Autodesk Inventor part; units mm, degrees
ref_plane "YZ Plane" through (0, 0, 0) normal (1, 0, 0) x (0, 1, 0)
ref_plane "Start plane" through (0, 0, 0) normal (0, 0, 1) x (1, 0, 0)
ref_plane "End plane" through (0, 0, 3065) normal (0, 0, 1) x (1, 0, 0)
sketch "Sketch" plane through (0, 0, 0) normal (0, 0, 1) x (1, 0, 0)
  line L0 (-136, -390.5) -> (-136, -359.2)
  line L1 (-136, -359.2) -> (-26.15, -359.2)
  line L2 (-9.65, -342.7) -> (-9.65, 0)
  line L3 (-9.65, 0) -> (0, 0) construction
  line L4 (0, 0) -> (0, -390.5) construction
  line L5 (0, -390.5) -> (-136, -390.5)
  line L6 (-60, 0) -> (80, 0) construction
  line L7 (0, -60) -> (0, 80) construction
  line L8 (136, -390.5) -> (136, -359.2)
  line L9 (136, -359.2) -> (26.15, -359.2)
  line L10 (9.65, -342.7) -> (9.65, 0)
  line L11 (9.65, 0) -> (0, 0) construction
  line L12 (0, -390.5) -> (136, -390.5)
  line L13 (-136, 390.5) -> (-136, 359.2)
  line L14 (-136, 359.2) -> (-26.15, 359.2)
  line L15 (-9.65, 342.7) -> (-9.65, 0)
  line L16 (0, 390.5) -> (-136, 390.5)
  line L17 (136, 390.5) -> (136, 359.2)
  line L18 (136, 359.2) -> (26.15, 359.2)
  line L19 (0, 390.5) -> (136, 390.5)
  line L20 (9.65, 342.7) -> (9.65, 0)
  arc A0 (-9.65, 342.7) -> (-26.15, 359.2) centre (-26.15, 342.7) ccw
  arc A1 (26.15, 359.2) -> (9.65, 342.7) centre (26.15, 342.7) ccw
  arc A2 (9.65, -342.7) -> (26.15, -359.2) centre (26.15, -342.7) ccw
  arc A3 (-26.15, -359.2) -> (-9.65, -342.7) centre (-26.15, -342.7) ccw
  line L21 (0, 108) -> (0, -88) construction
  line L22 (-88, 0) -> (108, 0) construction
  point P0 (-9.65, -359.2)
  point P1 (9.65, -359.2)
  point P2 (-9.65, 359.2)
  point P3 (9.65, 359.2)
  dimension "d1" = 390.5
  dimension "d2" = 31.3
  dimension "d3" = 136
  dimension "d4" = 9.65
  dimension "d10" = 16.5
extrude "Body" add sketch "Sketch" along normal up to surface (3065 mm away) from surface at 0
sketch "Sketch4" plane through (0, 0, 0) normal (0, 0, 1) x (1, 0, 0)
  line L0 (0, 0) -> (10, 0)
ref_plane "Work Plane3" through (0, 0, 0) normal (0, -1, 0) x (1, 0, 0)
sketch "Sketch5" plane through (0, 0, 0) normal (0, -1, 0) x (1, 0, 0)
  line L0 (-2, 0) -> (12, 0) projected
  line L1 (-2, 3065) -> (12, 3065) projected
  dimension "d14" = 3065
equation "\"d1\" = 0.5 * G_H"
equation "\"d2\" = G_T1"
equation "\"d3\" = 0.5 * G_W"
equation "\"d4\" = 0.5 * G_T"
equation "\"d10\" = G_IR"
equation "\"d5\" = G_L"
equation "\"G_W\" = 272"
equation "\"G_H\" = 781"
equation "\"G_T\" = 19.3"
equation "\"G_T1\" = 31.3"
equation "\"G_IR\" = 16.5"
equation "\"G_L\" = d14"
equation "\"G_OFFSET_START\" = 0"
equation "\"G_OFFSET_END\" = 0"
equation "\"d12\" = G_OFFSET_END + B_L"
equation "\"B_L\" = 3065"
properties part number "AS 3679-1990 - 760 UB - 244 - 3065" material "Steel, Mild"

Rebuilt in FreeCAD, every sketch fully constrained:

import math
import FreeCAD as App
import Part
import Sketcher
Q = App.Units.Quantity

doc = App.newDocument("Part")
body = doc.addObject("PartDesign::Body", "Body")

sketch1 = body.newObject("Sketcher::SketchObject", "Sketch")
sketch1.AttachmentSupport = (doc.getObject("XY_Plane"), [""])
sketch1.MapMode = "FlatFace"
sketch1.addGeometry([
    Part.LineSegment(App.Vector(-136, -359.2, 0), App.Vector(-136, -390.5, 0)),
    Part.LineSegment(App.Vector(-136, -390.5, 0), App.Vector(136, -390.5, 0)),
    Part.LineSegment(App.Vector(136, -390.5, 0), App.Vector(136, -359.2, 0)),
    Part.LineSegment(App.Vector(136, -359.2, 0), App.Vector(26.15, -359.2, 0)),
    Part.ArcOfCircle(Part.Circle(App.Vector(26.15, -342.7, 0), App.Vector(0, 0, 1), 16.5), math.radians(180), math.radians(270)),
    Part.LineSegment(App.Vector(9.65, -342.7, 0), App.Vector(9.65, 342.7, 0)),
    Part.ArcOfCircle(Part.Circle(App.Vector(26.15, 342.7, 0), App.Vector(0, 0, 1), 16.5), math.radians(90), math.radians(180)),
    Part.LineSegment(App.Vector(26.15, 359.2, 0), App.Vector(136, 359.2, 0)),
    Part.LineSegment(App.Vector(136, 359.2, 0), App.Vector(136, 390.5, 0)),
    Part.LineSegment(App.Vector(136, 390.5, 0), App.Vector(-136, 390.5, 0)),
    Part.LineSegment(App.Vector(-136, 390.5, 0), App.Vector(-136, 359.2, 0)),
    Part.LineSegment(App.Vector(-136, 359.2, 0), App.Vector(-26.15, 359.2, 0)),
    Part.ArcOfCircle(Part.Circle(App.Vector(-26.15, 342.7, 0), App.Vector(0, 0, 1), 16.5), math.radians(0), math.radians(90)),
    Part.LineSegment(App.Vector(-9.65, 342.7, 0), App.Vector(-9.65, -342.7, 0)),
    Part.ArcOfCircle(Part.Circle(App.Vector(-26.15, -342.7, 0), App.Vector(0, 0, 1), 16.5), math.radians(-90), math.radians(0)),
    Part.LineSegment(App.Vector(-26.15, -359.2, 0), App.Vector(-136, -359.2, 0)),
], False)
sketch1.addConstraint([
    Sketcher.Constraint("Coincident", 0, 2, 1, 1),
    Sketcher.Constraint("Coincident", 1, 2, 2, 1),
    Sketcher.Constraint("Coincident", 2, 2, 3, 1),
    Sketcher.Constraint("Tangent", 3, 2, 4, 2),
    Sketcher.Constraint("Tangent", 4, 1, 5, 1),
    Sketcher.Constraint("Tangent", 5, 2, 6, 2),
    Sketcher.Constraint("Tangent", 6, 1, 7, 1),
    Sketcher.Constraint("Coincident", 7, 2, 8, 1),
    Sketcher.Constraint("Coincident", 8, 2, 9, 1),
    Sketcher.Constraint("Coincident", 9, 2, 10, 1),
    Sketcher.Constraint("Coincident", 10, 2, 11, 1),
    Sketcher.Constraint("Tangent", 11, 2, 12, 2),
    Sketcher.Constraint("Tangent", 12, 1, 13, 1),
    Sketcher.Constraint("Tangent", 13, 2, 14, 2),
    Sketcher.Constraint("Tangent", 14, 1, 15, 1),
    Sketcher.Constraint("Coincident", 15, 2, 0, 1),
    Sketcher.Constraint("Vertical", 0),
    Sketcher.Constraint("Horizontal", 1),
    Sketcher.Constraint("Vertical", 2),
    Sketcher.Constraint("Horizontal", 3),
    Sketcher.Constraint("Vertical", 5),
    Sketcher.Constraint("Horizontal", 7),
    Sketcher.Constraint("Vertical", 8),
    Sketcher.Constraint("Horizontal", 9),
    Sketcher.Constraint("Vertical", 10),
    Sketcher.Constraint("Horizontal", 11),
    Sketcher.Constraint("Vertical", 13),
    Sketcher.Constraint("Horizontal", 15),
    Sketcher.Constraint("Equal", 4, 6),
    Sketcher.Constraint("Equal", 6, 12),
    Sketcher.Constraint("Equal", 12, 14),
    Sketcher.Constraint("Symmetric", 4, 3, 12, 3, -1, 1),
    Sketcher.Constraint("Symmetric", 0, 2, 8, 2, -1, 1),
    Sketcher.Constraint("Symmetric", 7, 2, 10, 2, -2),
    Sketcher.Constraint("Symmetric", 2, 2, 15, 2, -2),
    Sketcher.Constraint("Radius", 4, Q("16.5 mm")),
    Sketcher.Constraint("DistanceY", 0, 2, 0, 1, Q("31.3 mm")),
    Sketcher.Constraint("DistanceX", 0, 2, -1, 1, Q("136 mm")),
    Sketcher.Constraint("DistanceY", 0, 2, -1, 1, Q("390.5 mm")),
    Sketcher.Constraint("DistanceX", -1, 1, 4, 1, Q("9.65 mm")),
])
pad1 = body.newObject("PartDesign::Pad", "Pad")
pad1.Profile = sketch1
pad1.Length = 3065

doc.recompute()
